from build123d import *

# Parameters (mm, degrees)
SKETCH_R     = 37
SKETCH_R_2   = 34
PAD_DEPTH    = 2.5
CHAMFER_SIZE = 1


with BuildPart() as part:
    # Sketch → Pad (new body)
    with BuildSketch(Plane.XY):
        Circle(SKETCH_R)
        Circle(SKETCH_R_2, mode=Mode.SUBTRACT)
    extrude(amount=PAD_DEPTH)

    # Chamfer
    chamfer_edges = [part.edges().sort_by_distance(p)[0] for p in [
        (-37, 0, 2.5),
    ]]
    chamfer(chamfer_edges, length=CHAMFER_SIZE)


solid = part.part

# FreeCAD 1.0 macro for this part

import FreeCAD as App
import Part
import Sketcher

V = App.Vector


def edges_at(feature, points):
    """Names of the edges that pass closest to the given points."""
    edges = feature.Shape.Edges
    near = lambda p: min(range(len(edges)), key=lambda i: edges[i].distToShape(Part.Vertex(*p))[0])
    return sorted({f"Edge{near(p) + 1}" for p in points})

doc = App.newDocument("Part")
body = doc.addObject("PartDesign::Body", "Body")

sketch1 = body.newObject("Sketcher::SketchObject", "Sketch")
sketch1.AttachmentSupport = (doc.getObject("XY_Plane"), [""])
sketch1.MapMode = "FlatFace"
sketch1.addGeometry(Part.Circle(V(0, 0, 0), V(0, 0, 1), 37), False)
sketch1.addGeometry(Part.Circle(V(0, 0, 0), V(0, 0, 1), 34), False)
sketch1.addConstraint(Sketcher.Constraint("Coincident", 0, 3, -1, 1))
sketch1.addConstraint(Sketcher.Constraint("Coincident", 1, 3, -1, 1))
sketch1.addConstraint(Sketcher.Constraint("Diameter", 0, 74.0))
sketch1.addConstraint(Sketcher.Constraint("Diameter", 1, 68.0))
pad1 = body.newObject("PartDesign::Pad", "Pad")
pad1.Profile = sketch1
pad1.Length = 2.5
doc.recompute()

chamfer = body.newObject("PartDesign::Chamfer", "Chamfer")
chamfer.Base = (pad1, edges_at(pad1, [(-37, 0, 2.5)]))
chamfer.Size = 1

doc.recompute()
